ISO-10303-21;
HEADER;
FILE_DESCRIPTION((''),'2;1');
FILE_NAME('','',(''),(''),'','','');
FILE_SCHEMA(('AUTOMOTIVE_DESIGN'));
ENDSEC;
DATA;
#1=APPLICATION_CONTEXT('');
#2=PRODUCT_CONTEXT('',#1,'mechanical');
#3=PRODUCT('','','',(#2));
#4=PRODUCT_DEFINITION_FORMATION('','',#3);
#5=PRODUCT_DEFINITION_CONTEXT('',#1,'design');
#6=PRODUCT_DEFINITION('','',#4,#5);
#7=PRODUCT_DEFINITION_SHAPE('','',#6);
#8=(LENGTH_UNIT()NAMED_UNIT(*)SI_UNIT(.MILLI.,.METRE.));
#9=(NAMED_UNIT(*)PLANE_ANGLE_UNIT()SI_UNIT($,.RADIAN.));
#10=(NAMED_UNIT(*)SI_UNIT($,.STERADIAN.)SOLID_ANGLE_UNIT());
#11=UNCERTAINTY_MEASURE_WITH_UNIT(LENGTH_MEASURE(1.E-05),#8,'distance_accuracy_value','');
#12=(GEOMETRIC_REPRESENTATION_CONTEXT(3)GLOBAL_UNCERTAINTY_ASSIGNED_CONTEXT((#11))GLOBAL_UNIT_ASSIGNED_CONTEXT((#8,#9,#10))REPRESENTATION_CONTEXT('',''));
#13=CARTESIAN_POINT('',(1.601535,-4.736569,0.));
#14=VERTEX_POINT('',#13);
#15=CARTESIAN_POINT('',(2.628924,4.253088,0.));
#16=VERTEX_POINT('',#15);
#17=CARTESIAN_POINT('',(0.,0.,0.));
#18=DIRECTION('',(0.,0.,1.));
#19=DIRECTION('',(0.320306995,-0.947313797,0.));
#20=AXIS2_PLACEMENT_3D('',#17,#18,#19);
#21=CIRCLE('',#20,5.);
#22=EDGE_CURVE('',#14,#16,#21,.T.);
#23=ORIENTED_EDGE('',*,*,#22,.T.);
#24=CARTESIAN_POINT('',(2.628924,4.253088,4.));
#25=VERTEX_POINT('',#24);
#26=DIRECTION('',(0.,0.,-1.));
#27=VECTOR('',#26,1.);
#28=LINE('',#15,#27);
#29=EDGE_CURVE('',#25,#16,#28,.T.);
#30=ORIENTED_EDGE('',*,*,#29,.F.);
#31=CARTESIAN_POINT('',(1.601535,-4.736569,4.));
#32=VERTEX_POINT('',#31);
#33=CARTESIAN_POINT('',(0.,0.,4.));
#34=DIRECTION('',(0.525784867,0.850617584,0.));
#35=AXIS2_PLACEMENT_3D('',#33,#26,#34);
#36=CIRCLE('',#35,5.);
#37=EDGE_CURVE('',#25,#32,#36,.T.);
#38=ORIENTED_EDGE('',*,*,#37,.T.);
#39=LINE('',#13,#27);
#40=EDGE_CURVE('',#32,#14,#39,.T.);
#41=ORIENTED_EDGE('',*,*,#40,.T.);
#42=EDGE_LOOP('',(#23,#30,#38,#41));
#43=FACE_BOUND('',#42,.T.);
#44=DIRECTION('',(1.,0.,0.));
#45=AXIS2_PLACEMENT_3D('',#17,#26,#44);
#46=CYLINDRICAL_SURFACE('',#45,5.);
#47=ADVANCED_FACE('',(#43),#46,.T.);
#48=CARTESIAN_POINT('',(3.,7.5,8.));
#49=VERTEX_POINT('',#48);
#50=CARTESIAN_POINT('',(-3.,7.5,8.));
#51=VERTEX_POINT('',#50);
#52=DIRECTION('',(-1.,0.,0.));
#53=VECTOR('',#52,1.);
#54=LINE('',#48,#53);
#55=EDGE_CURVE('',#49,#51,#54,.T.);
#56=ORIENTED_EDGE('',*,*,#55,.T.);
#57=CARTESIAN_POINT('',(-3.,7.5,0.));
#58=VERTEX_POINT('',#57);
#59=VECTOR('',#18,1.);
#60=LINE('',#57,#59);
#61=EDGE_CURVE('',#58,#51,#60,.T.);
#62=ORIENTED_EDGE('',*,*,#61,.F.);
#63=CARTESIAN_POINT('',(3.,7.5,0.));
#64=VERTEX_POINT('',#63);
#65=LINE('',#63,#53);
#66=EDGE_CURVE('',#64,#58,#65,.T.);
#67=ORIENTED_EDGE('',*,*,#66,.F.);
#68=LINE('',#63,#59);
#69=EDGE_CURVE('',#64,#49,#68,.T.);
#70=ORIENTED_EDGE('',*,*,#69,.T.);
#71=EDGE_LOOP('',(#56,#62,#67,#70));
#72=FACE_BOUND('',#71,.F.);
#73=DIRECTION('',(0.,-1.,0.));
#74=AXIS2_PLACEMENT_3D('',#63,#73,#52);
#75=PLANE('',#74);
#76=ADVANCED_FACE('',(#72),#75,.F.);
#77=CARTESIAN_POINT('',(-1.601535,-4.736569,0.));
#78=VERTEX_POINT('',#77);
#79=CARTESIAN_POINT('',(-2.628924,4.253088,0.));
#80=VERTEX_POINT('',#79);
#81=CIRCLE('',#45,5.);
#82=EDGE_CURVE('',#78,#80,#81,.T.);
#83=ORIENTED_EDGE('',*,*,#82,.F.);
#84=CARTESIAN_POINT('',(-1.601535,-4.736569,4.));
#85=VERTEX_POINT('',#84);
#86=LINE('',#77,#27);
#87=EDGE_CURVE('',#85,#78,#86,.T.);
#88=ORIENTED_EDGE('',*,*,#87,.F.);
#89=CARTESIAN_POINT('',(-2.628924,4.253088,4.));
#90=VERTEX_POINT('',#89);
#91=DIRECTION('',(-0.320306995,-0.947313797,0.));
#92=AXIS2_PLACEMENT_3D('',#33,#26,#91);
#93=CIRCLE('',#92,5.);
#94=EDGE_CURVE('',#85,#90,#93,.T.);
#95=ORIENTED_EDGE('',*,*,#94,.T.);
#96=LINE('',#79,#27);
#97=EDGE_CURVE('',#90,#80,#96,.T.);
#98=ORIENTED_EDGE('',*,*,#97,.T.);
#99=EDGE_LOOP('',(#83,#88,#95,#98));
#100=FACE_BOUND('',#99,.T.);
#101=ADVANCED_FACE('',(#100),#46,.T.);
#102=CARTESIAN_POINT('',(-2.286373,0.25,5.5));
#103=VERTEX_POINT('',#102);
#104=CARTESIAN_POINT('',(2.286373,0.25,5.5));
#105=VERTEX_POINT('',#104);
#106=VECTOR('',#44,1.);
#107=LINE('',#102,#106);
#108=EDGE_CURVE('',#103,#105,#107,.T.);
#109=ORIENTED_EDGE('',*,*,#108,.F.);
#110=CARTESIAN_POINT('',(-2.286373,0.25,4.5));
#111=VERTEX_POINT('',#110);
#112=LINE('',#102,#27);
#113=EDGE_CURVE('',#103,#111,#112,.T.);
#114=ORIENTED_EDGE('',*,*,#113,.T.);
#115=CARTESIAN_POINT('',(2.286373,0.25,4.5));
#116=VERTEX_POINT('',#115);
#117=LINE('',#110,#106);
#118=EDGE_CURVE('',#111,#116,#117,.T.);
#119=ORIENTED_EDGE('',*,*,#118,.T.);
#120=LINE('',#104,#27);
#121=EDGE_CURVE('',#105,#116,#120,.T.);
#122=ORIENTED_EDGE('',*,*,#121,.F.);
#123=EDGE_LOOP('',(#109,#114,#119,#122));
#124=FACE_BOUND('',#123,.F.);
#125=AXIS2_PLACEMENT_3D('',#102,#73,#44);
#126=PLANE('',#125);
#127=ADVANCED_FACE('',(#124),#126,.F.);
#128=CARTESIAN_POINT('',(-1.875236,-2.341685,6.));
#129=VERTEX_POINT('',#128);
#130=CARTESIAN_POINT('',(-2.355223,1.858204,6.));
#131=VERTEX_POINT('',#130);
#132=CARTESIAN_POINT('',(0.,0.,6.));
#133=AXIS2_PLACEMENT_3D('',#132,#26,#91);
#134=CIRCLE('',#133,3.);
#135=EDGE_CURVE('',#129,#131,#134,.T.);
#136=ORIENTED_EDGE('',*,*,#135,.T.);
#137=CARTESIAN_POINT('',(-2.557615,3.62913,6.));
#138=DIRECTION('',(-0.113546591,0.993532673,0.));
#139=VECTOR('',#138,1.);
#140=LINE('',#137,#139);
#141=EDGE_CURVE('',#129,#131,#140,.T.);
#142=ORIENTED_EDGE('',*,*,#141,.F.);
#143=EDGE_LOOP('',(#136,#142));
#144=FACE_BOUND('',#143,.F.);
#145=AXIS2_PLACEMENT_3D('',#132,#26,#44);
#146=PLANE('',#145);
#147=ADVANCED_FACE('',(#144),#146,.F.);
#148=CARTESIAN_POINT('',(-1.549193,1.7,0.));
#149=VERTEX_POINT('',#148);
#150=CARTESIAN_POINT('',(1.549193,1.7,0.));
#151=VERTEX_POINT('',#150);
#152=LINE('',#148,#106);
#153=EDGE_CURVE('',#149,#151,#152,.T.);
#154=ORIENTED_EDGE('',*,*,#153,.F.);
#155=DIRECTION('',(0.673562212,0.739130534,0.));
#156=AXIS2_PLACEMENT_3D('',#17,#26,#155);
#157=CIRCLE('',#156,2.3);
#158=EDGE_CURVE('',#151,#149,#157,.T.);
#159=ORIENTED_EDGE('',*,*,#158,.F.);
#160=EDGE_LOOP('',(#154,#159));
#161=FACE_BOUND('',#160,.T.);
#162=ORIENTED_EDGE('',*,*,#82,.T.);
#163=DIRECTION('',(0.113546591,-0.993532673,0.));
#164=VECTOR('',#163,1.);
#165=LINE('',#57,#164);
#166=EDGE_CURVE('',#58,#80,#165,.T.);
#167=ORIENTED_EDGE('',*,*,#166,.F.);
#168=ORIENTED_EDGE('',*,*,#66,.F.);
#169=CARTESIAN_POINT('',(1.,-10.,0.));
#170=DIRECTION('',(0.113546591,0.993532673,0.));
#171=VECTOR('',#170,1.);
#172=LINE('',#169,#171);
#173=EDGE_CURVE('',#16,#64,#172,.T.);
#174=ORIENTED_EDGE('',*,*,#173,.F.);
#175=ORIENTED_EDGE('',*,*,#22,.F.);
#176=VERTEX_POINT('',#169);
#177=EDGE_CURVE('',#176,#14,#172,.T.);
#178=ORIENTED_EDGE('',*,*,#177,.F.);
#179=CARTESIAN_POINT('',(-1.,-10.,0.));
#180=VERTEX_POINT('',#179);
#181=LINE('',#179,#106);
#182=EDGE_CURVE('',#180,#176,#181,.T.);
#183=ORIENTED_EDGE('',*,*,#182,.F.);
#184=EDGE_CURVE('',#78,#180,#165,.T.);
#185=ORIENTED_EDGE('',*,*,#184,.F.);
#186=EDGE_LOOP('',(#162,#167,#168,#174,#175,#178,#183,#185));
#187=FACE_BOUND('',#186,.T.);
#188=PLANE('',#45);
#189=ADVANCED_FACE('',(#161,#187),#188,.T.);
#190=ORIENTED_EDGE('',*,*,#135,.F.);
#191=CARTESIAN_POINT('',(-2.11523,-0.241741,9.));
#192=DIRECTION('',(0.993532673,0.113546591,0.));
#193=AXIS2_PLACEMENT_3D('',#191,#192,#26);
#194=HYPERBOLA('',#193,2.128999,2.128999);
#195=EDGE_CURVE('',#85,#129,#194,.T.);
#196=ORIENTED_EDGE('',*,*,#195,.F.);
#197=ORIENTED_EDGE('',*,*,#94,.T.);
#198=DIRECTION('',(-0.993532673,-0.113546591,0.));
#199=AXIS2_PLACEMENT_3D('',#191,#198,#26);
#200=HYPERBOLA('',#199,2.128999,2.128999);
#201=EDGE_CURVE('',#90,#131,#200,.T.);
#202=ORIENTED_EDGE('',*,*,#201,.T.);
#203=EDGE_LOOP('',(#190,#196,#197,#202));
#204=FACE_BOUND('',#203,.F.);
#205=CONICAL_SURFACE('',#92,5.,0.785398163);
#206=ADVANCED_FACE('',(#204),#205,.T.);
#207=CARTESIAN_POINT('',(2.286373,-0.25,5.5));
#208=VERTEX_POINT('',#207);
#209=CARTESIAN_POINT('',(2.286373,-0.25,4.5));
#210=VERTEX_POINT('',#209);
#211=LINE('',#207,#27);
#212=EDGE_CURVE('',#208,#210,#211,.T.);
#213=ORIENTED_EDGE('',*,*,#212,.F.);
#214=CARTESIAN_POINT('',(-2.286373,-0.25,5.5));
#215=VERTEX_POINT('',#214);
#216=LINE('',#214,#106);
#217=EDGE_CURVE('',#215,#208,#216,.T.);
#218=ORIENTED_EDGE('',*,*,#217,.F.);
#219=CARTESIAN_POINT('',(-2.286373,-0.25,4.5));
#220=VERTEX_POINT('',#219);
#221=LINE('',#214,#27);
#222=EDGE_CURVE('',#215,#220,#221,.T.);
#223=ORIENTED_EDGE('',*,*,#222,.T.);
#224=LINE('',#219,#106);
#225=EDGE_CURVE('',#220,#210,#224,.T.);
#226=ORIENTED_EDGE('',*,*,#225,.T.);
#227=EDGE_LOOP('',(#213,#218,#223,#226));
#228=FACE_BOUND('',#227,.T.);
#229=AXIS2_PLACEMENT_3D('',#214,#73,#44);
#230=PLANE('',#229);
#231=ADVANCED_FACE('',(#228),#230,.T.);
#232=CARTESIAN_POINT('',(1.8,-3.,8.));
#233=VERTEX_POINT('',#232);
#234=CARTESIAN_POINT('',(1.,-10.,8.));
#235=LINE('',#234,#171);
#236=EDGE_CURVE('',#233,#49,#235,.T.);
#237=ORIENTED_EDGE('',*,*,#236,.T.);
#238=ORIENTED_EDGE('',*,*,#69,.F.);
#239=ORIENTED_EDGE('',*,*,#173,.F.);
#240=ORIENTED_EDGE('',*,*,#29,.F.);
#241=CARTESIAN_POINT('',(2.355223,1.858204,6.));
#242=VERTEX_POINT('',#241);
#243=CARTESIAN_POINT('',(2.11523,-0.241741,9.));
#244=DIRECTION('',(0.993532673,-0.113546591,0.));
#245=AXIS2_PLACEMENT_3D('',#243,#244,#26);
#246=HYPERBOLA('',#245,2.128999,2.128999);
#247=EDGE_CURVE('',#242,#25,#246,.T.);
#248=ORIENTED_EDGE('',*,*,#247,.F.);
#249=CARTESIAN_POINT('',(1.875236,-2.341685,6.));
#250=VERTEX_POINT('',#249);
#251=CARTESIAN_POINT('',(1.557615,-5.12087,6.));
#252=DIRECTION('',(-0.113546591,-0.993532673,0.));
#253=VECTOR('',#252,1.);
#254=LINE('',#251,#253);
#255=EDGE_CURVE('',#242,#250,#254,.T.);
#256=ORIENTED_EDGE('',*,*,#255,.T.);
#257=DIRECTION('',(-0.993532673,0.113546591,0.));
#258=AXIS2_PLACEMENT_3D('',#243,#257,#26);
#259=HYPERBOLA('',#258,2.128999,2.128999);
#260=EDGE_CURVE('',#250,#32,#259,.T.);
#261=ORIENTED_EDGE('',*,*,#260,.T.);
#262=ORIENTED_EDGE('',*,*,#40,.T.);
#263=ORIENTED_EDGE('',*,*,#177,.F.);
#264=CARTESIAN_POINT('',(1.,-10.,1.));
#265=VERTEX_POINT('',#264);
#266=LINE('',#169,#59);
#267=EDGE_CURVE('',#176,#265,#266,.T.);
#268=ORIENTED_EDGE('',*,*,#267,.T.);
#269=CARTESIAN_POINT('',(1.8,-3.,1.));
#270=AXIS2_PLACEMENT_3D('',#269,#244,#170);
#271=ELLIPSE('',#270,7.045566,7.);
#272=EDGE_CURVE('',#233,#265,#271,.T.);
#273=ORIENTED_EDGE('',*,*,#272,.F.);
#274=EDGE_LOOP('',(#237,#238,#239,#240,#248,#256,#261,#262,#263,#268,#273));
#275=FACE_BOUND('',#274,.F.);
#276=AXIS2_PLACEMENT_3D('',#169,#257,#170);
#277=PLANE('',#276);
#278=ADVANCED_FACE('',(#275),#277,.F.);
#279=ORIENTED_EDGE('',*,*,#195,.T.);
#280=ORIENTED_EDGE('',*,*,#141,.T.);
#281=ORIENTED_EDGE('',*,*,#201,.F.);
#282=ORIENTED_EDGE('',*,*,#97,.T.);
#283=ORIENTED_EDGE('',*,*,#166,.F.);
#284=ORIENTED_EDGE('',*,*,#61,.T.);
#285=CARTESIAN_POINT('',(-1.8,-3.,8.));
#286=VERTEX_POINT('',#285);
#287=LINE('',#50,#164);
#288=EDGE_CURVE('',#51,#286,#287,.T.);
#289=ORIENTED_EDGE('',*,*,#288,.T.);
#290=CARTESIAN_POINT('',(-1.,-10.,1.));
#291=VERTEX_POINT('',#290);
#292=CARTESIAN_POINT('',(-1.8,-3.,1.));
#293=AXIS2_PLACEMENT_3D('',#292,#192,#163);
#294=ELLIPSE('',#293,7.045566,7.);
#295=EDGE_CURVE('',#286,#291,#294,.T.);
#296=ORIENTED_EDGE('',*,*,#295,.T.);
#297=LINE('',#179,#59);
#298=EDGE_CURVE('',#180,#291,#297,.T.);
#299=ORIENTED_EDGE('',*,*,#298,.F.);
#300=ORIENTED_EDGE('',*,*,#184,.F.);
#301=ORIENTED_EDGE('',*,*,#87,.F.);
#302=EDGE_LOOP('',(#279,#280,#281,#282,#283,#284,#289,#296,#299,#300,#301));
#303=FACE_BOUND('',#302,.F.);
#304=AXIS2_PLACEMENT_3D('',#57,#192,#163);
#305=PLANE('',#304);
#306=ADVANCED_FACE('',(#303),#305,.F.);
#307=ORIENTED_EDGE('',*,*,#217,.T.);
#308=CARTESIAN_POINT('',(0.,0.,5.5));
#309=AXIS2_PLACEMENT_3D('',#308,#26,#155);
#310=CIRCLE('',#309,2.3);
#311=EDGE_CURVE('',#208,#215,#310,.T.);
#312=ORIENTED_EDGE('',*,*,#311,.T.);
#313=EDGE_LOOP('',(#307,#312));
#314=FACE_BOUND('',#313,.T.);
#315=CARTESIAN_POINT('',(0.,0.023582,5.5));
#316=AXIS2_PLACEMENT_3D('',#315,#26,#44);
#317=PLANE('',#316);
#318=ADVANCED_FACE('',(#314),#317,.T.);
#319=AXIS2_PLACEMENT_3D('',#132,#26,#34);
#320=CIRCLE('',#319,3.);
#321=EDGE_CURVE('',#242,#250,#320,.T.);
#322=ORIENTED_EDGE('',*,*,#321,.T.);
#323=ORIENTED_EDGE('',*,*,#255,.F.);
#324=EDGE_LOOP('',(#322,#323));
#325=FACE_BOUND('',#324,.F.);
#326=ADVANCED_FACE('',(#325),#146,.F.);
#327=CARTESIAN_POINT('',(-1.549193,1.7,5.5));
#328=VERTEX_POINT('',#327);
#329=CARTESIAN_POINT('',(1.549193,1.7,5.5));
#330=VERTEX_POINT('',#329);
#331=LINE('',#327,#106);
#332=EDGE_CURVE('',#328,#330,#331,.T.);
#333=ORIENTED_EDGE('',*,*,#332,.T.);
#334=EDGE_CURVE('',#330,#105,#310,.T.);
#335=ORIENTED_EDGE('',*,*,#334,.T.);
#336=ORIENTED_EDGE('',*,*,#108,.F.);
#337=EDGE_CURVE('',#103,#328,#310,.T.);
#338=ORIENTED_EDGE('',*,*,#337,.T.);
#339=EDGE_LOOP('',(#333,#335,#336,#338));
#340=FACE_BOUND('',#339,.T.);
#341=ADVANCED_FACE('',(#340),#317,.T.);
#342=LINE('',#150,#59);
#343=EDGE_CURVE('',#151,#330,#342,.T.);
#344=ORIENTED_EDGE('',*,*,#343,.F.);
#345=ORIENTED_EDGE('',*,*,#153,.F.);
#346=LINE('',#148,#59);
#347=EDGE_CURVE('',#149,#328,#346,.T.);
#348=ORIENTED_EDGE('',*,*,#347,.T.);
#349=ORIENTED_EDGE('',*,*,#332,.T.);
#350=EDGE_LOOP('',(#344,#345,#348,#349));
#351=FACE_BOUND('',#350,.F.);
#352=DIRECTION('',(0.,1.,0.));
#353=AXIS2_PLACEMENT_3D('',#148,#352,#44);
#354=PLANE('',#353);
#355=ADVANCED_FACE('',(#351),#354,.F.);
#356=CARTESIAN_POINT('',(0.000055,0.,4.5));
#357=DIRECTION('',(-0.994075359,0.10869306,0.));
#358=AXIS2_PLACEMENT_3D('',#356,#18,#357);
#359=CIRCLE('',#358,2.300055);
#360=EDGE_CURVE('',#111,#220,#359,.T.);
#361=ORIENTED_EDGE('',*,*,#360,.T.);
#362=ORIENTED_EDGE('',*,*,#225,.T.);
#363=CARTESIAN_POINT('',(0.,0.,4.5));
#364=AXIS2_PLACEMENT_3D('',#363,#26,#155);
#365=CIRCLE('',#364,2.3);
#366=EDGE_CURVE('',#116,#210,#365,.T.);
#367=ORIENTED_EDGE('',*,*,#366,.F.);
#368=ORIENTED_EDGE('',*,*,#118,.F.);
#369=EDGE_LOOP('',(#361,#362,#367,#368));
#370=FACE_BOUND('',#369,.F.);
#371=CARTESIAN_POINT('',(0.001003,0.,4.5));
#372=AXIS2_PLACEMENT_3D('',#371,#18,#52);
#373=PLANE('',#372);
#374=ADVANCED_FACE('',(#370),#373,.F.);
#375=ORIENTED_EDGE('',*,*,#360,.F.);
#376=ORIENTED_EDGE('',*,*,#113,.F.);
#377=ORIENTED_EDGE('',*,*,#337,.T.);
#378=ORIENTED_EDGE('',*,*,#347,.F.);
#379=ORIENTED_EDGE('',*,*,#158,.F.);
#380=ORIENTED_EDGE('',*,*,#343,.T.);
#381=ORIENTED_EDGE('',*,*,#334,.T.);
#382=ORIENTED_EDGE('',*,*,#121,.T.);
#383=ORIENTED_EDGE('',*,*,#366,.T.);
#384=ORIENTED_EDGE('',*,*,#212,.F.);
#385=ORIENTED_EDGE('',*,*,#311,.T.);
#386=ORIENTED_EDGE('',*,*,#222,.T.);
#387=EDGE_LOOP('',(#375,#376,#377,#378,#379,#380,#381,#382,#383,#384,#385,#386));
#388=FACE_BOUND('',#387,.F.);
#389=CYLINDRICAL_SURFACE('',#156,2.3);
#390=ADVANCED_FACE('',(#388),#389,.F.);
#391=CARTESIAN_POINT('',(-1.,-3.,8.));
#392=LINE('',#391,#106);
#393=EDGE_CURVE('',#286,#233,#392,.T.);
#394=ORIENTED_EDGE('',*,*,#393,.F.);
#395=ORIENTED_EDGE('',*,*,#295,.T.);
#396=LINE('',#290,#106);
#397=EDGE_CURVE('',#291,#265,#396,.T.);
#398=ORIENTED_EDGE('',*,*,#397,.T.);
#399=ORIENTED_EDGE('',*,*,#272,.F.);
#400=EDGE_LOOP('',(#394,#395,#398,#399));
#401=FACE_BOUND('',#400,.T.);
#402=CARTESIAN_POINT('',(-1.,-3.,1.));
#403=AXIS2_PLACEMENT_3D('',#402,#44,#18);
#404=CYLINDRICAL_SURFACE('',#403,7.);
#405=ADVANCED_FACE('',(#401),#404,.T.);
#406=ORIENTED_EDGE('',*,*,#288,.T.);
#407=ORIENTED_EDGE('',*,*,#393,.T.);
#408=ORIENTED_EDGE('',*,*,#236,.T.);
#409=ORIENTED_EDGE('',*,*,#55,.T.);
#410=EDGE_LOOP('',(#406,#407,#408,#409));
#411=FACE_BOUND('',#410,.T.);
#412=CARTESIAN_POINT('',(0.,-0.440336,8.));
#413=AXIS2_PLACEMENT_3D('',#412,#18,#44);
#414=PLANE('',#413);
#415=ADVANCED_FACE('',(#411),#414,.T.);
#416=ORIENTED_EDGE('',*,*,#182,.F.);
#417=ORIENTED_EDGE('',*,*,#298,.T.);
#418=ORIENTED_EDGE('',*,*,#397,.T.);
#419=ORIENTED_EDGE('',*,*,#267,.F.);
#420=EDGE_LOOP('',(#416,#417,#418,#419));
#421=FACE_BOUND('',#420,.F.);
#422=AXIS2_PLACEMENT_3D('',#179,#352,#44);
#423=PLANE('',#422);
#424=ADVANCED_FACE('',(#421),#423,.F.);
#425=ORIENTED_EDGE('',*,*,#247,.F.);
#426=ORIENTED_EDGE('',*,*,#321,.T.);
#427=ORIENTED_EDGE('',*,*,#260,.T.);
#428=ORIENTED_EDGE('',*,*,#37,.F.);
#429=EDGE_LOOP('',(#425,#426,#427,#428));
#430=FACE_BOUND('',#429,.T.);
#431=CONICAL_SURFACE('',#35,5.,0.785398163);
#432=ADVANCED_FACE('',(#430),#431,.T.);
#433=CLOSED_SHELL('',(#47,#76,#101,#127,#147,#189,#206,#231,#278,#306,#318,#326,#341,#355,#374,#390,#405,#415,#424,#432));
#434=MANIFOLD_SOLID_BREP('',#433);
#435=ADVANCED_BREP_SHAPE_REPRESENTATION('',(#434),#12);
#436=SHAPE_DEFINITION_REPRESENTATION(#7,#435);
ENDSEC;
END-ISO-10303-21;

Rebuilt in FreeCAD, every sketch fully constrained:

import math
import FreeCAD as App
import Part
import Sketcher
from FreeCAD import Vector
Q = App.Units.Quantity


def edges_at(feature, points):
    """Names of the edges that pass closest to the given points."""
    edges = feature.Shape.Edges
    near = lambda p: min(range(len(edges)), key=lambda i: edges[i].distToShape(Part.Vertex(*p))[0])
    return sorted({f"Edge{near(p) + 1}" for p in points})


def add_polygon(sketch, points):
    """Adds a closed chain of lines whose ends are joined by coincident constraints."""
    first, n = sketch.GeometryCount, len(points)
    for a, b in zip(points, points[1:] + points[:1]):
        sketch.addGeometry(Part.LineSegment(App.Vector(*a, 0), App.Vector(*b, 0)), False)
    for i in range(n):
        sketch.addConstraint(Sketcher.Constraint("Coincident", first + i, 2, first + (i + 1) % n, 1))

doc = App.newDocument("Part")
body = doc.addObject("PartDesign::Body", "Body")

sketch1 = doc.addObject("Sketcher::SketchObject", "Sketch")
body.addObject(sketch1)
sketch1.AttachmentSupport = (doc.XY_Plane, [""])
sketch1.MapMode = "FlatFace"
add_polygon(sketch1, [(1, -10), (3, 7.5), (-3, 7.5), (-1, -10)])
sketch1.addConstraint(Sketcher.Constraint("Horizontal", 1))
sketch1.addConstraint(Sketcher.Constraint("Horizontal", 3))
sketch1.addConstraint(Sketcher.Constraint("Equal", 0, 2))
sketch1.addConstraint(Sketcher.Constraint("DistanceX", 1, 2, 1, 1, Q("6 mm")))
sketch1.addConstraint(Sketcher.Constraint("DistanceX", 3, 1, 3, 2, Q("2 mm")))
sketch1.addConstraint(Sketcher.Constraint("DistanceX", -1, 1, 0, 2, Q("3 mm")))
sketch1.addConstraint(Sketcher.Constraint("DistanceY", 2, 2, -1, 1, Q("10 mm")))
sketch1.addConstraint(Sketcher.Constraint("DistanceY", -1, 1, 0, 2, Q("7.5 mm")))
pad1 = doc.addObject("PartDesign::Pad", "Pad")
body.addObject(pad1)
pad1.Profile = sketch1
pad1.Length = 8

sketch2 = doc.addObject("Sketcher::SketchObject", "Sketch001")
body.addObject(sketch2)
sketch2.AttachmentSupport = (doc.XY_Plane, [""])
sketch2.MapMode = "FlatFace"
sketch2.addGeometry(Part.Circle(Vector(0, 0, 0), Vector(0, 0, 1), 5), False)
sketch2.addConstraint(Sketcher.Constraint("Coincident", 0, 3, -1, 1))
sketch2.addConstraint(Sketcher.Constraint("Diameter", 0, Q("10 mm")))
pad2 = doc.addObject("PartDesign::Pad", "Pad001")
body.addObject(pad2)
pad2.Profile = sketch2
pad2.Length = 6

sketch3 = doc.addObject("Sketcher::SketchObject", "Sketch002")
body.addObject(sketch3)
sketch3.AttachmentSupport = (doc.XY_Plane, [""])
sketch3.MapMode = "FlatFace"
sketch3.addGeometry(Part.LineSegment(Vector(-1.549193, 1.7, 0), Vector(1.549193, 1.7, 0)), False)
sketch3.addGeometry(Part.ArcOfCircle(Part.Circle(Vector(0, 0, 0), Vector(0, 0, 1), 2.3), math.radians(132.342597), math.radians(407.657403)), False)
sketch3.addConstraint(Sketcher.Constraint("Coincident", 0, 1, 1, 1))
sketch3.addConstraint(Sketcher.Constraint("Coincident", 1, 2, 0, 2))
sketch3.addConstraint(Sketcher.Constraint("Horizontal", 0))
sketch3.addConstraint(Sketcher.Constraint("Coincident", 1, 3, -1, 1))
sketch3.addConstraint(Sketcher.Constraint("Radius", 1, Q("2.3 mm")))
sketch3.addConstraint(Sketcher.Constraint("DistanceY", -1, 1, 0, 1, Q("1.7 mm")))
pocket1 = doc.addObject("PartDesign::Pocket", "Pocket")
body.addObject(pocket1)
pocket1.Profile = sketch3
pocket1.Length = 5.5
pocket1.Reversed = True

sketch4 = doc.addObject("Sketcher::SketchObject", "Sketch003")
body.addObject(sketch4)
sketch4.AttachmentSupport = (doc.XY_Plane, [""])
sketch4.MapMode = "FlatFace"
sketch4.AttachmentOffset = App.Placement(Vector(0, 0, 5.5), App.Rotation())
sketch4.addGeometry(Part.LineSegment(Vector(2.286373, -0.25, 0), Vector(-2.286373, -0.25, 0)), False)
sketch4.addGeometry(Part.ArcOfCircle(Part.Circle(Vector(0.000055, 0, 0), Vector(0, 0, 1), 2.300055), math.radians(173.760018), math.radians(186.239982)), False)
sketch4.addGeometry(Part.LineSegment(Vector(-2.286373, 0.25, 0), Vector(2.286373, 0.25, 0)), False)
sketch4.addGeometry(Part.ArcOfCircle(Part.Circle(Vector(1.15686, 0, 0), Vector(0, 0, 1), 1.156849), math.radians(-12.480318), math.radians(12.480318)), False)
sketch4.addConstraint(Sketcher.Constraint("Coincident", 0, 2, 1, 2))
sketch4.addConstraint(Sketcher.Constraint("Coincident", 1, 1, 2, 1))
sketch4.addConstraint(Sketcher.Constraint("Coincident", 2, 2, 3, 2))
sketch4.addConstraint(Sketcher.Constraint("Coincident", 3, 1, 0, 1))
sketch4.addConstraint(Sketcher.Constraint("Horizontal", 0))
sketch4.addConstraint(Sketcher.Constraint("Horizontal", 2))
sketch4.addConstraint(Sketcher.Constraint("Symmetric", 0, 2, 2, 2, -1, 1))
sketch4.addConstraint(Sketcher.Constraint("PointOnObject", 1, 3, -1))
sketch4.addConstraint(Sketcher.Constraint("PointOnObject", 3, 3, -1))
sketch4.addConstraint(Sketcher.Constraint("DistanceY", 0, 2, 1, 1, Q("0.5 mm")))
sketch4.addConstraint(Sketcher.Constraint("Radius", 3, Q("1.156849 mm")))
sketch4.addConstraint(Sketcher.Constraint("Radius", 1, Q("2.300055 mm")))
sketch4.addConstraint(Sketcher.Constraint("DistanceX", 0, 2, 0, 1, Q("4.572746 mm")))
pad3 = doc.addObject("PartDesign::Pad", "Pad002")
body.addObject(pad3)
pad3.Profile = sketch4
pad3.Length = 1
pad3.Reversed = True
doc.recompute()

chamfer = doc.addObject("PartDesign::Chamfer", "Chamfer")
body.addObject(chamfer)
chamfer.Base = (pad3, edges_at(pad3, [(4.968, -0.568, 6), (4.968, -0.568, 6), (-4.968, -0.568, 6)]))
chamfer.Size = 2
doc.recompute()

fillet = doc.addObject("PartDesign::Fillet", "Fillet")
body.addObject(fillet)
fillet.Base = (chamfer, edges_at(chamfer, [(0, -10, 8)]))
fillet.Radius = 7

doc.recompute()
